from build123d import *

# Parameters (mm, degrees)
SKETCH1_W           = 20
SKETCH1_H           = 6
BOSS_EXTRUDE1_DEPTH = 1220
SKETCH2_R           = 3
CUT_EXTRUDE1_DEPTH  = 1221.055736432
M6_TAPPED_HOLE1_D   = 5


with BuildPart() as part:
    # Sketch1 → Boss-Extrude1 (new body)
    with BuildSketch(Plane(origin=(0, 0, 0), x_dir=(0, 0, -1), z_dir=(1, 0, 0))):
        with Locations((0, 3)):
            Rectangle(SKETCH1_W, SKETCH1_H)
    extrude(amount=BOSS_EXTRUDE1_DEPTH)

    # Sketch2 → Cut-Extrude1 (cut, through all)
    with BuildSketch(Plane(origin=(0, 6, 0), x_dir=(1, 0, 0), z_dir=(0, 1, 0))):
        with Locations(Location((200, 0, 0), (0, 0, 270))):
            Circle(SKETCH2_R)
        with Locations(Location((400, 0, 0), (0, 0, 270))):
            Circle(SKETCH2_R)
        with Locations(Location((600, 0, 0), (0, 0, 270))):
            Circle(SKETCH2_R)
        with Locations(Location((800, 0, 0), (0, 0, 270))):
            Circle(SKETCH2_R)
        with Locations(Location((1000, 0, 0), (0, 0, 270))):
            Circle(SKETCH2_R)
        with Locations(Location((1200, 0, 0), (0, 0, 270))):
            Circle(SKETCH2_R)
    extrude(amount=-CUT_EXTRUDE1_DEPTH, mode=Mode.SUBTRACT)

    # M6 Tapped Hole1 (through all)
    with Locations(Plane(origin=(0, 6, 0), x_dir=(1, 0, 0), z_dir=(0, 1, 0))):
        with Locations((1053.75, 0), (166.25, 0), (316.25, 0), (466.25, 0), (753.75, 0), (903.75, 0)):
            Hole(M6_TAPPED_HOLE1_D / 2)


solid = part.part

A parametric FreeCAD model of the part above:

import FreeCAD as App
import Part
import Sketcher

V = App.Vector

doc = App.newDocument("Part")
body = doc.addObject("PartDesign::Body", "Body")

sketch1 = body.newObject("Sketcher::SketchObject", "Sketch")
sketch1.AttachmentSupport = (doc.getObject("YZ_Plane"), [""])
sketch1.MapMode = "FlatFace"
sketch1.addGeometry(Part.LineSegment(V(6, 10, 0), V(0, 10, 0)), False)
sketch1.addGeometry(Part.LineSegment(V(0, 10, 0), V(0, -10, 0)), False)
sketch1.addGeometry(Part.LineSegment(V(0, -10, 0), V(6, -10, 0)), False)
sketch1.addGeometry(Part.LineSegment(V(6, -10, 0), V(6, 10, 0)), False)
sketch1.addConstraint(Sketcher.Constraint("Coincident", 0, 2, 1, 1))
sketch1.addConstraint(Sketcher.Constraint("Coincident", 1, 2, 2, 1))
sketch1.addConstraint(Sketcher.Constraint("Coincident", 2, 2, 3, 1))
sketch1.addConstraint(Sketcher.Constraint("Coincident", 3, 2, 0, 1))
sketch1.addConstraint(Sketcher.Constraint("Horizontal", 0))
sketch1.addConstraint(Sketcher.Constraint("Vertical", 1))
sketch1.addConstraint(Sketcher.Constraint("Horizontal", 2))
sketch1.addConstraint(Sketcher.Constraint("Vertical", 3))
sketch1.addConstraint(Sketcher.Constraint("Symmetric", 0, 2, 1, 2, -1, 1))
sketch1.addConstraint(Sketcher.Constraint("DistanceX", 0, 2, 0, 1, 6.0))
sketch1.addConstraint(Sketcher.Constraint("DistanceY", 1, 2, 1, 1, 20.0))
pad1 = body.newObject("PartDesign::Pad", "Pad")
pad1.Profile = sketch1
pad1.Length = 1220

sketch2 = body.newObject("Sketcher::SketchObject", "Sketch001")
sketch2.AttachmentSupport = (doc.getObject("XZ_Plane"), [""])
sketch2.MapMode = "FlatFace"
sketch2.AttachmentOffset = App.Placement(V(0, 0, -6), App.Rotation())
sketch2.addGeometry(Part.Circle(V(200, 0, 0), V(0, 0, 1), 3), False)
sketch2.addGeometry(Part.Circle(V(400, 0, 0), V(0, 0, 1), 3), False)
sketch2.addGeometry(Part.Circle(V(600, 0, 0), V(0, 0, 1), 3), False)
sketch2.addGeometry(Part.Circle(V(800, 0, 0), V(0, 0, 1), 3), False)
sketch2.addGeometry(Part.Circle(V(1000, 0, 0), V(0, 0, 1), 3), False)
sketch2.addGeometry(Part.Circle(V(1200, 0, 0), V(0, 0, 1), 3), False)
sketch2.addConstraint(Sketcher.Constraint("Equal", 0, 1))
sketch2.addConstraint(Sketcher.Constraint("Equal", 1, 2))
sketch2.addConstraint(Sketcher.Constraint("Equal", 2, 3))
sketch2.addConstraint(Sketcher.Constraint("Equal", 3, 4))
sketch2.addConstraint(Sketcher.Constraint("Equal", 4, 5))
sketch2.addConstraint(Sketcher.Constraint("PointOnObject", 0, 3, -1))
sketch2.addConstraint(Sketcher.Constraint("PointOnObject", 1, 3, -1))
sketch2.addConstraint(Sketcher.Constraint("PointOnObject", 2, 3, -1))
sketch2.addConstraint(Sketcher.Constraint("PointOnObject", 3, 3, -1))
sketch2.addConstraint(Sketcher.Constraint("PointOnObject", 4, 3, -1))
sketch2.addConstraint(Sketcher.Constraint("PointOnObject", 5, 3, -1))
sketch2.addConstraint(Sketcher.Constraint("Diameter", 0, 6.0))
sketch2.addConstraint(Sketcher.Constraint("DistanceX", -1, 1, 0, 3, 200.0))
sketch2.addConstraint(Sketcher.Constraint("DistanceX", -1, 1, 1, 3, 400.0))
sketch2.addConstraint(Sketcher.Constraint("DistanceX", -1, 1, 2, 3, 600.0))
sketch2.addConstraint(Sketcher.Constraint("DistanceX", -1, 1, 3, 3, 800.0))
sketch2.addConstraint(Sketcher.Constraint("DistanceX", -1, 1, 4, 3, 1000.0))
sketch2.addConstraint(Sketcher.Constraint("DistanceX", -1, 1, 5, 3, 1200.0))
pocket1 = body.newObject("PartDesign::Pocket", "Pocket")
pocket1.Profile = sketch2
pocket1.Type = "ThroughAll"
pocket1.Reversed = True

sketch3 = body.newObject("Sketcher::SketchObject", "Sketch002")
sketch3.AttachmentSupport = (doc.getObject("XZ_Plane"), [""])
sketch3.MapMode = "FlatFace"
sketch3.AttachmentOffset = App.Placement(V(0, 0, -6), App.Rotation())
sketch3.addGeometry(Part.Circle(V(1053.75, 0, 0), V(0, 0, 1), 2.5), False)
sketch3.addGeometry(Part.Circle(V(166.25, 0, 0), V(0, 0, 1), 2.5), False)
sketch3.addGeometry(Part.Circle(V(316.25, 0, 0), V(0, 0, 1), 2.5), False)
sketch3.addGeometry(Part.Circle(V(466.25, 0, 0), V(0, 0, 1), 2.5), False)
sketch3.addGeometry(Part.Circle(V(753.75, 0, 0), V(0, 0, 1), 2.5), False)
sketch3.addGeometry(Part.Circle(V(903.75, 0, 0), V(0, 0, 1), 2.5), False)
sketch3.addConstraint(Sketcher.Constraint("Equal", 0, 1))
sketch3.addConstraint(Sketcher.Constraint("Equal", 1, 2))
sketch3.addConstraint(Sketcher.Constraint("Equal", 2, 3))
sketch3.addConstraint(Sketcher.Constraint("Equal", 3, 4))
sketch3.addConstraint(Sketcher.Constraint("Equal", 4, 5))
sketch3.addConstraint(Sketcher.Constraint("PointOnObject", 0, 3, -1))
sketch3.addConstraint(Sketcher.Constraint("PointOnObject", 1, 3, -1))
sketch3.addConstraint(Sketcher.Constraint("PointOnObject", 2, 3, -1))
sketch3.addConstraint(Sketcher.Constraint("PointOnObject", 3, 3, -1))
sketch3.addConstraint(Sketcher.Constraint("PointOnObject", 4, 3, -1))
sketch3.addConstraint(Sketcher.Constraint("PointOnObject", 5, 3, -1))
sketch3.addConstraint(Sketcher.Constraint("Diameter", 0, 5.0))
sketch3.addConstraint(Sketcher.Constraint("DistanceX", 1, 3, 2, 3, 150.0))
sketch3.addConstraint(Sketcher.Constraint("DistanceX", 2, 3, 3, 3, 150.0))
sketch3.addConstraint(Sketcher.Constraint("DistanceX", 4, 3, 0, 3, 300.0))
sketch3.addConstraint(Sketcher.Constraint("DistanceX", 5, 3, 0, 3, 150.0))
sketch3.addConstraint(Sketcher.Constraint("DistanceX", 1, 3, 0, 3, 887.5))
sketch3.addConstraint(Sketcher.Constraint("DistanceX", -1, 1, 0, 3, 1053.75))
doc.recompute()
hole = body.newObject("PartDesign::Hole", "Hole")
hole.Profile = sketch3
hole.ThreadType = "None"
hole.Diameter = 5
hole.DepthType = "ThroughAll"
hole.Reversed = True

doc.recompute()
